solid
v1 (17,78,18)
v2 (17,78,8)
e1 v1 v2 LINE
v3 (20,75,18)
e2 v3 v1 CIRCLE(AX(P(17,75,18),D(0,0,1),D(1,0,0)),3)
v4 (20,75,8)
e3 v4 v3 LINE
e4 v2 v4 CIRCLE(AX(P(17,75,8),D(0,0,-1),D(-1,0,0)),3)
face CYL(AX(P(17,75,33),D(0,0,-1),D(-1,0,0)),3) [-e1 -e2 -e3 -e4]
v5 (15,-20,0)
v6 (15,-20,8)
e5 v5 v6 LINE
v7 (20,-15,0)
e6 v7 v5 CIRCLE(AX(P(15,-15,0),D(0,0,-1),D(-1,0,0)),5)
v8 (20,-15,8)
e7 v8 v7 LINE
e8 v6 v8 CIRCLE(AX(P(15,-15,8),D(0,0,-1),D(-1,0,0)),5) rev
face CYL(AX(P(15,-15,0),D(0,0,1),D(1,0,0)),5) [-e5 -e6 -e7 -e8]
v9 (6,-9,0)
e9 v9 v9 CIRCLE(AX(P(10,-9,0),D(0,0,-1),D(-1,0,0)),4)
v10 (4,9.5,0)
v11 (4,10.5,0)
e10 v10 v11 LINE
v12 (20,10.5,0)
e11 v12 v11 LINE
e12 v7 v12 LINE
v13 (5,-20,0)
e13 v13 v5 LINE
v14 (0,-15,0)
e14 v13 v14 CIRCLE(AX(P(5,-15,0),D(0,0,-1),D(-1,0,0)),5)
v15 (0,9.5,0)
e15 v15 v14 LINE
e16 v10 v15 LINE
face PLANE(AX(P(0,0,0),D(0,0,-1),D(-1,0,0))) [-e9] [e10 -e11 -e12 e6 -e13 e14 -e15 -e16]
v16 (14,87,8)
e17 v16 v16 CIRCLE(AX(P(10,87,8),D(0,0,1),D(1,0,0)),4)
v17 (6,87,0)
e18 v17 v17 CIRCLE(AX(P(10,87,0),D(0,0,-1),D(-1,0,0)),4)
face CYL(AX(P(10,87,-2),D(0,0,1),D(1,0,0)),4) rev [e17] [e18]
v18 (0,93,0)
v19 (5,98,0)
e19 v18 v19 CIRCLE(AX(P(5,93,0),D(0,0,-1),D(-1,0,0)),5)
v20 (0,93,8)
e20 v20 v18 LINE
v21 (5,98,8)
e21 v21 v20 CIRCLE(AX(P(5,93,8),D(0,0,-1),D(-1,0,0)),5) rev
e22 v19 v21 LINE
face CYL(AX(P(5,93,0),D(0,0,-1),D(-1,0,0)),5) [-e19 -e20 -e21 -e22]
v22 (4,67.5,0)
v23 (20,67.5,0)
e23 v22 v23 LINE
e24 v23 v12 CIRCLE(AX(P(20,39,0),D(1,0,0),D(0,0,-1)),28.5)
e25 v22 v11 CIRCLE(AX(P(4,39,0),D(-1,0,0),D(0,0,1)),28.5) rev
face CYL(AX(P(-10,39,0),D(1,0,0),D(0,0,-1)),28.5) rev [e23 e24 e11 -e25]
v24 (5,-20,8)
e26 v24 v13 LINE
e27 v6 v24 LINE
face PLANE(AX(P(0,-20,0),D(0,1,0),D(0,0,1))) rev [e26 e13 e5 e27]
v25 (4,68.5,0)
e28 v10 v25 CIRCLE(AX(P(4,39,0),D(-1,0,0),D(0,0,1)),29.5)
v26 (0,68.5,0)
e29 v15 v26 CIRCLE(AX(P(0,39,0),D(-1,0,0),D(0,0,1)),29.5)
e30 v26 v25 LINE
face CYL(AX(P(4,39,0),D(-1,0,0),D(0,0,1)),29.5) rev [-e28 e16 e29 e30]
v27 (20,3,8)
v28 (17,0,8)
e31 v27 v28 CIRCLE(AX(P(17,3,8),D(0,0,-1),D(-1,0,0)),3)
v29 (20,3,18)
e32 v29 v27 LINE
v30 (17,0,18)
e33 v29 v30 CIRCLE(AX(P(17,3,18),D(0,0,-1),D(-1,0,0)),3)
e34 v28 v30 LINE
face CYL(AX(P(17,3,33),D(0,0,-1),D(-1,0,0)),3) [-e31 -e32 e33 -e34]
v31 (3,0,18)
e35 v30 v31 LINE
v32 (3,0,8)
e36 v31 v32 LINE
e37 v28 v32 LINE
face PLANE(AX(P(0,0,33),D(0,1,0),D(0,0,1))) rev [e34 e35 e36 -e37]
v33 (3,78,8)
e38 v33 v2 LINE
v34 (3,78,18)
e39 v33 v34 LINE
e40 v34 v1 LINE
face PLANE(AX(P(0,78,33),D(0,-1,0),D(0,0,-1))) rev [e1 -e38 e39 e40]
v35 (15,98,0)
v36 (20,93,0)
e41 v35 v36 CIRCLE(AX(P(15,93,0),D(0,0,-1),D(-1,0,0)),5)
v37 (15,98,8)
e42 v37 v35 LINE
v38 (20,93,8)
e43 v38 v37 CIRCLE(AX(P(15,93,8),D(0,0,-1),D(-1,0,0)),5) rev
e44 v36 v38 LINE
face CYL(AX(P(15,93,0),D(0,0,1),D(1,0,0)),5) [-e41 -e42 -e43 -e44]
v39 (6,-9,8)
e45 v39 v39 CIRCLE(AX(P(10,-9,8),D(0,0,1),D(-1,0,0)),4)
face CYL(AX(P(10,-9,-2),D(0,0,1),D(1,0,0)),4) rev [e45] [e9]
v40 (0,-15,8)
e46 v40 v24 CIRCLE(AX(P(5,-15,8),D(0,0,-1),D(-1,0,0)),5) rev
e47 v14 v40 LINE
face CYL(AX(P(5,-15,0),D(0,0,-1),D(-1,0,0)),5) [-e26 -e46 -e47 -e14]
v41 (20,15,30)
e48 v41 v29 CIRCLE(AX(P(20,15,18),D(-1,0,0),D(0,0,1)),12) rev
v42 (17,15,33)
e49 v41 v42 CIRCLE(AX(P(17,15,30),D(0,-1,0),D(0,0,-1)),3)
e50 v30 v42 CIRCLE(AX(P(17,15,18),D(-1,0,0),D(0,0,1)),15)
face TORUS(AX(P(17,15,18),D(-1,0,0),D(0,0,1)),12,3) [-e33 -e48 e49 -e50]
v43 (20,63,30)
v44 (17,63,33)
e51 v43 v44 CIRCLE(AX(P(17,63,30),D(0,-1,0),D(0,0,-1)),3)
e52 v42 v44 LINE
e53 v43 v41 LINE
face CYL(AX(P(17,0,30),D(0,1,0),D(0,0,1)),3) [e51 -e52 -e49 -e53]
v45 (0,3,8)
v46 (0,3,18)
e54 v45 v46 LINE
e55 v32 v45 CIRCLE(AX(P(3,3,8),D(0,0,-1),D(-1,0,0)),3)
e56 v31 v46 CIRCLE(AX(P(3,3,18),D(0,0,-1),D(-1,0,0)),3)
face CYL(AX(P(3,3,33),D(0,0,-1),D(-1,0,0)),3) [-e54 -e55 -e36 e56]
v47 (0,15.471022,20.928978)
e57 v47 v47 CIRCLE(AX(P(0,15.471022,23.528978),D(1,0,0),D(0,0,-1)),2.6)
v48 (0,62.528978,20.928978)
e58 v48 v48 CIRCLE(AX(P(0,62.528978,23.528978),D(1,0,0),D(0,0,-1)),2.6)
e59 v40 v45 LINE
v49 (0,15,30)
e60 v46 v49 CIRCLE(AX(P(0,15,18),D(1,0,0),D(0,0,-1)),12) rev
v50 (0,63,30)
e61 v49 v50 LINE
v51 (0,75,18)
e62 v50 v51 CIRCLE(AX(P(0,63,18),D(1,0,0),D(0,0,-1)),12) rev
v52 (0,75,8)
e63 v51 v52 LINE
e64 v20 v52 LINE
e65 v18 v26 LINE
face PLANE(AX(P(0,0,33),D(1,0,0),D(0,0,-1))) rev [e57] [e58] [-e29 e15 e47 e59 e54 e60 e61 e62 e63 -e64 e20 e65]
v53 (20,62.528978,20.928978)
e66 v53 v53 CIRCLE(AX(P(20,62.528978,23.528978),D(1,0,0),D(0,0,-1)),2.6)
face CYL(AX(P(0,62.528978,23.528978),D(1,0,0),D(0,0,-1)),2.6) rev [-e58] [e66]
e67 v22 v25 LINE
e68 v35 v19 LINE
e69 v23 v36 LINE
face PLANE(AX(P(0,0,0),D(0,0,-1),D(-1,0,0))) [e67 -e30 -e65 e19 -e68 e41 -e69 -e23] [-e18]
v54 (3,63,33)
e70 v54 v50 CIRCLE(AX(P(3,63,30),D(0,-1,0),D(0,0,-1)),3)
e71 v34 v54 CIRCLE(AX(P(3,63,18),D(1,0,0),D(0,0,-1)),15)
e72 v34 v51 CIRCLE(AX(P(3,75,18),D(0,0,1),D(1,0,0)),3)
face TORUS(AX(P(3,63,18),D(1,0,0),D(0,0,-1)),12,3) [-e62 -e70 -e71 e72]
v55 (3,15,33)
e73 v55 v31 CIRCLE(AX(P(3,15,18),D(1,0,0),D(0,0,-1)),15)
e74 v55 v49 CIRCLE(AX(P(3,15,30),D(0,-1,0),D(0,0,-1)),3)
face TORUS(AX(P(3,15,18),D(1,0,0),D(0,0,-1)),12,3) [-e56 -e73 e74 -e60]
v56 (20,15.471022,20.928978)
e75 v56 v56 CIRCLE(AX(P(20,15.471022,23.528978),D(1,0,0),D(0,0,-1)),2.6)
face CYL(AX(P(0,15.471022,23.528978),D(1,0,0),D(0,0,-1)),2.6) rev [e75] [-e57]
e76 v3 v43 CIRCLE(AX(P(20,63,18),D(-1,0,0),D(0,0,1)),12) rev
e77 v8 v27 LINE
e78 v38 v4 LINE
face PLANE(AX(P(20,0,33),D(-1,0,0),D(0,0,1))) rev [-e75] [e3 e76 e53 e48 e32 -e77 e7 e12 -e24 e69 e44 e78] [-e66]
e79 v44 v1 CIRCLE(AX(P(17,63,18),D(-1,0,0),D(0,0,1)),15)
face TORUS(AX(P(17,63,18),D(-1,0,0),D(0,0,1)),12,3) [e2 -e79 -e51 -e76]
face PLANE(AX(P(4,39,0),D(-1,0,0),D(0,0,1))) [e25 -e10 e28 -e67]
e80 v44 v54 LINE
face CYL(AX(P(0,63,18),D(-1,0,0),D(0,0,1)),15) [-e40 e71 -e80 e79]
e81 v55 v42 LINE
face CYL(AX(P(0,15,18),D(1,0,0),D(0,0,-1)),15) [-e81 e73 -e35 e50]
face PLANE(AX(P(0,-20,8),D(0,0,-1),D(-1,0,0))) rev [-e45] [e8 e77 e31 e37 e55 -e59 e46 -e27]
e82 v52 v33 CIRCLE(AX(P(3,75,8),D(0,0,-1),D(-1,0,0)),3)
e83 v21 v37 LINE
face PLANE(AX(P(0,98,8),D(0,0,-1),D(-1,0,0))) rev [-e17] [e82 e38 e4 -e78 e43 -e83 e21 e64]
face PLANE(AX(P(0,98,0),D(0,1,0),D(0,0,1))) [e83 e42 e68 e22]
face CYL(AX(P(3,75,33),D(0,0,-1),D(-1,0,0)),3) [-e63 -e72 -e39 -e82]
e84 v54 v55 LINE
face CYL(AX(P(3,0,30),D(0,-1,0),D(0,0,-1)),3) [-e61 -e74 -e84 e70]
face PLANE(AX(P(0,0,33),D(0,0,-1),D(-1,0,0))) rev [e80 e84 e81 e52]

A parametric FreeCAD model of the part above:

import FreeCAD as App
import Part
import Sketcher

V = App.Vector
Q = App.Units.Quantity


def edges_at(feature, points):
    """Names of the edges that pass closest to the given points."""
    edges = feature.Shape.Edges
    near = lambda p: min(range(len(edges)), key=lambda i: edges[i].distToShape(Part.Vertex(*p))[0])
    return sorted({f"Edge{near(p) + 1}" for p in points})

doc = App.newDocument("Part")
body = doc.addObject("PartDesign::Body", "Body")

sketch1 = doc.addObject("Sketcher::SketchObject", "Sketch")
body.addObject(sketch1)
sketch1.AttachmentSupport = (doc.XY_Plane, [""])
sketch1.MapMode = "FlatFace"
sketch1.addGeometry([
    Part.LineSegment(V(0, 78, 0), V(0, 0, 0)),
    Part.LineSegment(V(0, 0, 0), V(20, 0, 0)),
    Part.LineSegment(V(20, 0, 0), V(20, 78, 0)),
    Part.LineSegment(V(20, 78, 0), V(0, 78, 0)),
], False)
sketch1.addConstraint([
    Sketcher.Constraint("Coincident", 0, 2, 1, 1),
    Sketcher.Constraint("Coincident", 1, 2, 2, 1),
    Sketcher.Constraint("Coincident", 2, 2, 3, 1),
    Sketcher.Constraint("Coincident", 3, 2, 0, 1),
    Sketcher.Constraint("Vertical", 0),
    Sketcher.Constraint("Horizontal", 1),
    Sketcher.Constraint("Vertical", 2),
    Sketcher.Constraint("Horizontal", 3),
    Sketcher.Constraint("Coincident", 0, 2, -1, 1),
    Sketcher.Constraint("DistanceX", 1, 1, 1, 2, Q("20 mm")),
    Sketcher.Constraint("DistanceY", 0, 2, 0, 1, Q("78 mm")),
])
pad1 = doc.addObject("PartDesign::Pad", "Pad")
body.addObject(pad1)
pad1.Profile = sketch1
pad1.Length = 33

sketch2 = doc.addObject("Sketcher::SketchObject", "Sketch001")
body.addObject(sketch2)
sketch2.AttachmentSupport = (doc.XZ_Plane, [""])
sketch2.MapMode = "FlatFace"
sketch2.AttachmentOffset = App.Placement(V(0, 0, -78), App.Rotation())
sketch2.addGeometry([
    Part.LineSegment(V(0, 0, 0), V(0, 8, 0)),
    Part.LineSegment(V(0, 8, 0), V(20, 8, 0)),
    Part.LineSegment(V(20, 8, 0), V(20, 0, 0)),
    Part.LineSegment(V(20, 0, 0), V(0, 0, 0)),
], False)
sketch2.addConstraint([
    Sketcher.Constraint("Coincident", 0, 2, 1, 1),
    Sketcher.Constraint("Coincident", 1, 2, 2, 1),
    Sketcher.Constraint("Coincident", 2, 2, 3, 1),
    Sketcher.Constraint("Coincident", 3, 2, 0, 1),
    Sketcher.Constraint("Vertical", 0),
    Sketcher.Constraint("Horizontal", 1),
    Sketcher.Constraint("Vertical", 2),
    Sketcher.Constraint("Horizontal", 3),
    Sketcher.Constraint("Coincident", 3, 2, -1, 1),
    Sketcher.Constraint("DistanceX", 1, 1, 1, 2, Q("20 mm")),
    Sketcher.Constraint("DistanceY", 0, 1, 0, 2, Q("8 mm")),
])
pad2 = doc.addObject("PartDesign::Pad", "Pad001")
body.addObject(pad2)
pad2.Profile = sketch2
pad2.Length = 20
pad2.Reversed = True

sketch3 = doc.addObject("Sketcher::SketchObject", "Sketch002")
body.addObject(sketch3)
sketch3.AttachmentSupport = (doc.XZ_Plane, [""])
sketch3.MapMode = "FlatFace"
sketch3.addGeometry([
    Part.LineSegment(V(0, 8, 0), V(0, 0, 0)),
    Part.LineSegment(V(0, 0, 0), V(20, 0, 0)),
    Part.LineSegment(V(20, 0, 0), V(20, 8, 0)),
    Part.LineSegment(V(20, 8, 0), V(0, 8, 0)),
], False)
sketch3.addConstraint([
    Sketcher.Constraint("Coincident", 0, 2, 1, 1),
    Sketcher.Constraint("Coincident", 1, 2, 2, 1),
    Sketcher.Constraint("Coincident", 2, 2, 3, 1),
    Sketcher.Constraint("Coincident", 3, 2, 0, 1),
    Sketcher.Constraint("Vertical", 0),
    Sketcher.Constraint("Horizontal", 1),
    Sketcher.Constraint("Vertical", 2),
    Sketcher.Constraint("Horizontal", 3),
    Sketcher.Constraint("Coincident", 0, 2, -1, 1),
    Sketcher.Constraint("DistanceX", 1, 1, 1, 2, Q("20 mm")),
    Sketcher.Constraint("DistanceY", 0, 2, 0, 1, Q("8 mm")),
])
pad3 = doc.addObject("PartDesign::Pad", "Pad002")
body.addObject(pad3)
pad3.Profile = sketch3
pad3.Length = 20

sketch4 = doc.addObject("Sketcher::SketchObject", "Sketch003")
body.addObject(sketch4)
sketch4.AttachmentSupport = (doc.XY_Plane, [""])
sketch4.MapMode = "FlatFace"
sketch4.AttachmentOffset = App.Placement(V(0, 0, 8), App.Rotation())
sketch4.addGeometry([
    Part.Circle(V(10, 87, 0), V(0, 0, 1), 4),
    Part.Circle(V(10, -9, 0), V(0, 0, 1), 4),
], False)
sketch4.addConstraint([
    Sketcher.Constraint("Equal", 0, 1),
    Sketcher.Constraint("Vertical", 0, 3, 1, 3),
    Sketcher.Constraint("Diameter", 0, Q("8 mm")),
    Sketcher.Constraint("DistanceX", -1, 1, 0, 3, Q("10 mm")),
    Sketcher.Constraint("DistanceY", -1, 1, 0, 3, Q("87 mm")),
    Sketcher.Constraint("DistanceY", 1, 3, -1, 1, Q("9 mm")),
])
pocket1 = doc.addObject("PartDesign::Pocket", "Pocket")
body.addObject(pocket1)
pocket1.Profile = sketch4
pocket1.Length = 10
doc.recompute()

fillet = doc.addObject("PartDesign::Fillet", "Fillet")
body.addObject(fillet)
fillet.Base = (pocket1, edges_at(pocket1, [
    (0, 98, 4),
    (20, 98, 4),
    (0, -20, 4),
    (20, -20, 4),
]))
fillet.Radius = 5

sketch5 = doc.addObject("Sketcher::SketchObject", "Sketch004")
body.addObject(sketch5)
sketch5.AttachmentSupport = (doc.YZ_Plane, [""])
sketch5.MapMode = "FlatFace"
sketch5.AttachmentOffset = App.Placement(V(0, 0, 20), App.Rotation())
sketch5.addGeometry(Part.Circle(V(39, 0, 0), V(0, 0, 1), 28.5), False)
sketch5.addConstraint([
    Sketcher.Constraint("PointOnObject", 0, 3, -1),
    Sketcher.Constraint("Diameter", 0, Q("57 mm")),
    Sketcher.Constraint("DistanceX", -1, 1, 0, 3, Q("39 mm")),
])
pocket2 = doc.addObject("PartDesign::Pocket", "Pocket001")
body.addObject(pocket2)
pocket2.Profile = sketch5
pocket2.Length = 30

sketch6 = doc.addObject("Sketcher::SketchObject", "Sketch005")
body.addObject(sketch6)
sketch6.AttachmentSupport = (doc.YZ_Plane, [""])
sketch6.MapMode = "FlatFace"
sketch6.AttachmentOffset = App.Placement(V(0, 0, 20), App.Rotation())
sketch6.addGeometry([
    Part.Circle(V(15.471022, 23.528978, 0), V(0, 0, 1), 2.6),
    Part.Circle(V(62.528978, 23.528978, 0), V(0, 0, 1), 2.6),
], False)
sketch6.addConstraint([
    Sketcher.Constraint("Equal", 0, 1),
    Sketcher.Constraint("Horizontal", 0, 3, 1, 3),
    Sketcher.Constraint("Diameter", 0, Q("5.2 mm")),
    Sketcher.Constraint("DistanceX", -1, 1, 0, 3, Q("15.471022 mm")),
    Sketcher.Constraint("DistanceY", -1, 1, 0, 3, Q("23.528978 mm")),
    Sketcher.Constraint("DistanceX", -1, 1, 1, 3, Q("62.528978 mm")),
])
pocket3 = doc.addObject("PartDesign::Pocket", "Pocket002")
body.addObject(pocket3)
pocket3.Profile = sketch6
pocket3.Length = 20
doc.recompute()

fillet2 = doc.addObject("PartDesign::Fillet", "Fillet001")
body.addObject(fillet2)
fillet2.Base = (pocket3, edges_at(pocket3, [(10, 78, 33), (10, 0, 33)]))
fillet2.Radius = 15
doc.recompute()

fillet3 = doc.addObject("PartDesign::Fillet", "Fillet002")
body.addObject(fillet3)
fillet3.Base = (fillet2, edges_at(fillet2, [
    (0, 39, 33),
    (20, 39, 33),
    (20, 78, 13),
    (20, 0, 13),
    (20, 73.607, 28.607),
    (20, 4.393, 28.607),
    (0, 0, 13),
    (0, 78, 13),
    (0, 73.607, 28.607),
    (0, 4.393, 28.607),
]))
fillet3.Radius = 3

sketch7 = doc.addObject("Sketcher::SketchObject", "Sketch006")
body.addObject(sketch7)
sketch7.AttachmentSupport = (doc.YZ_Plane, [""])
sketch7.MapMode = "FlatFace"
sketch7.addGeometry(Part.Circle(V(39, 0, 0), V(0, 0, 1), 29.5), False)
sketch7.addConstraint([
    Sketcher.Constraint("PointOnObject", 0, 3, -1),
    Sketcher.Constraint("Diameter", 0, Q("59 mm")),
    Sketcher.Constraint("DistanceX", -1, 1, 0, 3, Q("39 mm")),
])
pocket4 = doc.addObject("PartDesign::Pocket", "Pocket003")
body.addObject(pocket4)
pocket4.Profile = sketch7
pocket4.Length = 4
pocket4.Reversed = True

doc.recompute()
